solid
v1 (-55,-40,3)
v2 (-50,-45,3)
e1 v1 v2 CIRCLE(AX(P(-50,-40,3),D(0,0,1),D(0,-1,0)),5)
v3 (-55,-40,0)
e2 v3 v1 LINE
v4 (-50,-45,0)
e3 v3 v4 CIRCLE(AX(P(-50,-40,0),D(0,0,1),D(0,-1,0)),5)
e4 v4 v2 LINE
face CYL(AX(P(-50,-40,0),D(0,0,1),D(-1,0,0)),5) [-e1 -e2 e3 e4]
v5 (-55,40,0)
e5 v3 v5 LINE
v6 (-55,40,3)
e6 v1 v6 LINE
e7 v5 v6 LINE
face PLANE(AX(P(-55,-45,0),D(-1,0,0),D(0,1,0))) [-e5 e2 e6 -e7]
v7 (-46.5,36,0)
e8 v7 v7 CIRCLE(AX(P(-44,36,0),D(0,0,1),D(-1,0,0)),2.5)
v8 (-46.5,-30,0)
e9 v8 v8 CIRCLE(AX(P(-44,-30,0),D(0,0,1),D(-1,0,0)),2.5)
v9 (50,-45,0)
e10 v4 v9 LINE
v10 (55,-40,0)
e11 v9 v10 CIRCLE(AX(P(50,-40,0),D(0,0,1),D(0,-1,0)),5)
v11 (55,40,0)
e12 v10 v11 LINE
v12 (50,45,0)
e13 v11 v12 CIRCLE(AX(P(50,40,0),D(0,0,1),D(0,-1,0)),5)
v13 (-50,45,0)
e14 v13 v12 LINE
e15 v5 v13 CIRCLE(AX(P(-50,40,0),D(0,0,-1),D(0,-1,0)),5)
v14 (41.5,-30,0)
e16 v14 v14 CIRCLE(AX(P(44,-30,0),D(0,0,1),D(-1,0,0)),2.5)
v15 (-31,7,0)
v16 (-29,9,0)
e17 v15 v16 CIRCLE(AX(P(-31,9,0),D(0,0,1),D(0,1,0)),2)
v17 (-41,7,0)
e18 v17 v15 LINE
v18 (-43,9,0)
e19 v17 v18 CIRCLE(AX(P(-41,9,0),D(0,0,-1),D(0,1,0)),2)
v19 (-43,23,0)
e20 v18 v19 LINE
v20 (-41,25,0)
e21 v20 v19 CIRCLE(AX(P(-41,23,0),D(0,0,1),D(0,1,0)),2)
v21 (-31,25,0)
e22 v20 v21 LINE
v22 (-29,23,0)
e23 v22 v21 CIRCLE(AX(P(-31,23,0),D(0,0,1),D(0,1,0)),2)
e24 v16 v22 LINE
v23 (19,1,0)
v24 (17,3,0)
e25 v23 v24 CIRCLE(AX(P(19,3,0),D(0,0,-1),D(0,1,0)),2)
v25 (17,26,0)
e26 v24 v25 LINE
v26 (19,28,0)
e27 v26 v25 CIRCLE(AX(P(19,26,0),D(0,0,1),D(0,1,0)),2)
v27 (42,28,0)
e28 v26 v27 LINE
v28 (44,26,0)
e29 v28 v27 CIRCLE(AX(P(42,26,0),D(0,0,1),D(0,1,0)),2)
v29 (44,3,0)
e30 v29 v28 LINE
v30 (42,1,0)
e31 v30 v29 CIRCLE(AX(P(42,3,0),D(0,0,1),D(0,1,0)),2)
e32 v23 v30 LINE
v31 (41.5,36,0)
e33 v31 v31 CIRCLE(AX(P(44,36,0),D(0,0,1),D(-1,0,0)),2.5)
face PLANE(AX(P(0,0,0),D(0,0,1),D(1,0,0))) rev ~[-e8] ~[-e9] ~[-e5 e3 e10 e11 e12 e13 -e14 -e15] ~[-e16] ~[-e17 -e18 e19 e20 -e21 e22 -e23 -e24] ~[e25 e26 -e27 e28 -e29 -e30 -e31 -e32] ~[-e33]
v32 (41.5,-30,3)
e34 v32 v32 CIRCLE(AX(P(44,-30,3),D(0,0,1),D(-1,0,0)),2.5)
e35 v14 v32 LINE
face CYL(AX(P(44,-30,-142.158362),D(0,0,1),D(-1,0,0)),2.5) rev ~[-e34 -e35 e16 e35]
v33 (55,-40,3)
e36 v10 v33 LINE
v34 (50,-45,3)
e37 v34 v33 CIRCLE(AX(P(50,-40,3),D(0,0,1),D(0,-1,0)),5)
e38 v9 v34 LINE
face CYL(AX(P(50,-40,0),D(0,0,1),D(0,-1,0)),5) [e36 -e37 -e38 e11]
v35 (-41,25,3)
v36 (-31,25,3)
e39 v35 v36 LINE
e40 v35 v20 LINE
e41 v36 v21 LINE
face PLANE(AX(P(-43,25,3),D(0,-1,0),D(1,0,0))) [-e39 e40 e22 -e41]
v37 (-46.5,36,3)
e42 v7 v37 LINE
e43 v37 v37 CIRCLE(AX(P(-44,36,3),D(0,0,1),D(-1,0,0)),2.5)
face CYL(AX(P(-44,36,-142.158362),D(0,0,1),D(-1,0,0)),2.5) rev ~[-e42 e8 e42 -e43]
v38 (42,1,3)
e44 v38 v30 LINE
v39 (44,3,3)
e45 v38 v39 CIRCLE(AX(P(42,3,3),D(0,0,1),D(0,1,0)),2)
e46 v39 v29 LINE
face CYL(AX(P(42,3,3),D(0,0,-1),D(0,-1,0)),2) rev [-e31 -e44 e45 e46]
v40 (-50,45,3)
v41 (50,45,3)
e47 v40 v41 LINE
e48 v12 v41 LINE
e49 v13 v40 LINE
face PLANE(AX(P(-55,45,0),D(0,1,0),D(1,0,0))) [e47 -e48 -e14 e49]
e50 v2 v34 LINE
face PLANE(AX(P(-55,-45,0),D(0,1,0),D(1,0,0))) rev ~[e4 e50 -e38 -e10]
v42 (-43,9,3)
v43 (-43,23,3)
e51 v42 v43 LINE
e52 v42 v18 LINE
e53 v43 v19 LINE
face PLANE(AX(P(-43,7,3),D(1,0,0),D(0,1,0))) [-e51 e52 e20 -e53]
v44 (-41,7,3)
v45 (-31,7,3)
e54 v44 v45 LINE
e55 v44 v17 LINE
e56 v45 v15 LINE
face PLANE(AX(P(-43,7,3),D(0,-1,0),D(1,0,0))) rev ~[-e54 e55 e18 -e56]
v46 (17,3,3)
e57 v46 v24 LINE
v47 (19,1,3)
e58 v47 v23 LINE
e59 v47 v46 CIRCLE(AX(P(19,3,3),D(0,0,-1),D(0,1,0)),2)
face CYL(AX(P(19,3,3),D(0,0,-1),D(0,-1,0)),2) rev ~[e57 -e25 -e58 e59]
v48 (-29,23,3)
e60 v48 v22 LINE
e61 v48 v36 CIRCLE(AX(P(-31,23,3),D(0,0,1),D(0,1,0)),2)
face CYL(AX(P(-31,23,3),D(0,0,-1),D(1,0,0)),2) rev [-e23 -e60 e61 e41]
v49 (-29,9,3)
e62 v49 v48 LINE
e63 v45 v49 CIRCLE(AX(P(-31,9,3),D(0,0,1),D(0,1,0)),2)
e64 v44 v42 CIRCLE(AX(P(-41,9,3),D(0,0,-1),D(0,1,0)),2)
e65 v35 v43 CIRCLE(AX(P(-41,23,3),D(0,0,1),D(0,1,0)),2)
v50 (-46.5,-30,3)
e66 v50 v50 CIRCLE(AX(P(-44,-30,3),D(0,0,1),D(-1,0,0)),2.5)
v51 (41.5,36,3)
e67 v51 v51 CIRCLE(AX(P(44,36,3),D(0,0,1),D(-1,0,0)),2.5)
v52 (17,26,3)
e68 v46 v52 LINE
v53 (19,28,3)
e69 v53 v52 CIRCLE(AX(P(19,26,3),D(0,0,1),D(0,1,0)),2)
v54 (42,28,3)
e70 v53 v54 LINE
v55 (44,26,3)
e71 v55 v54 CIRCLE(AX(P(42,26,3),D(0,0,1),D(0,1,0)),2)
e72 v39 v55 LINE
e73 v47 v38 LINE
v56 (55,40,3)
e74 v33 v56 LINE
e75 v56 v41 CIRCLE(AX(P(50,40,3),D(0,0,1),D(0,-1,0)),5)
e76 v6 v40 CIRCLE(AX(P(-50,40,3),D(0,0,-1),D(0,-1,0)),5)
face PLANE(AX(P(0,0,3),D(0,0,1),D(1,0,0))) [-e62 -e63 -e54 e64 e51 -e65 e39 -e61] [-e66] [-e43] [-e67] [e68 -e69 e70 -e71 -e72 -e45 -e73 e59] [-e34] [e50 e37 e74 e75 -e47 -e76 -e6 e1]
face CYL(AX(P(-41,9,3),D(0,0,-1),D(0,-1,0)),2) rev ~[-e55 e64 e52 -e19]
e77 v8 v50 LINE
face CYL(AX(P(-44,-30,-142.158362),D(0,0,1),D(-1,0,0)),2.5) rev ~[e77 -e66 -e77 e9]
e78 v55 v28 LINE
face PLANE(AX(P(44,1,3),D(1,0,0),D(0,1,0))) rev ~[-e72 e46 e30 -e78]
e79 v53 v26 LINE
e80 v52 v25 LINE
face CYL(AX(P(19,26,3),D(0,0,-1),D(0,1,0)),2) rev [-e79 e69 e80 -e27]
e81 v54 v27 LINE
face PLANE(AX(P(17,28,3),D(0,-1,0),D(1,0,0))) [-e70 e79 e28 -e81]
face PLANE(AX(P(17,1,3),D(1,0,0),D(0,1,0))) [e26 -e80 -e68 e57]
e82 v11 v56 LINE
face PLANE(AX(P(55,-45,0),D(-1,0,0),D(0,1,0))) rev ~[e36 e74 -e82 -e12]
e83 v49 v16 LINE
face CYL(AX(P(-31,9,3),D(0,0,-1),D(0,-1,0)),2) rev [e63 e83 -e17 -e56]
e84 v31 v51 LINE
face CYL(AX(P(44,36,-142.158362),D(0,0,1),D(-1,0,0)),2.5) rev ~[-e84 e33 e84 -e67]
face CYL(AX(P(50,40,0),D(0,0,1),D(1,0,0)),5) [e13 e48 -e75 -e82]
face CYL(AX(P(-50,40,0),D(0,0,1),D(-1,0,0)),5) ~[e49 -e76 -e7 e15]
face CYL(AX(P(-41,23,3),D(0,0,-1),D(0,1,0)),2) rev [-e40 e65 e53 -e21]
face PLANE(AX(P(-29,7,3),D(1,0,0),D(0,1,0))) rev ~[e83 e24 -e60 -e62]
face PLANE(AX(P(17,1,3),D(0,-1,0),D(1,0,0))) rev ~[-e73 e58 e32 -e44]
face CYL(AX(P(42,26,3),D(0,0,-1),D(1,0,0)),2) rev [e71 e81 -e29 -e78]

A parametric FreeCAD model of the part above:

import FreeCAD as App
import Part
import Sketcher

V = App.Vector


def edges_at(feature, points):
    """Names of the edges that pass closest to the given points."""
    edges = feature.Shape.Edges
    near = lambda p: min(range(len(edges)), key=lambda i: edges[i].distToShape(Part.Vertex(*p))[0])
    return sorted({f"Edge{near(p) + 1}" for p in points})


def add_polygon(sketch, points):
    """Adds a closed chain of lines whose ends are joined by coincident constraints."""
    first, n = sketch.GeometryCount, len(points)
    for a, b in zip(points, points[1:] + points[:1]):
        sketch.addGeometry(Part.LineSegment(App.Vector(*a, 0), App.Vector(*b, 0)), False)
    for i in range(n):
        sketch.addConstraint(Sketcher.Constraint("Coincident", first + i, 2, first + (i + 1) % n, 1))

doc = App.newDocument("Part")
params = doc.addObject("Spreadsheet::Sheet", "Params")
for row, (alias, value) in enumerate([
    ("sketch1_width", "110 mm"),
    ("sketch1_height", "90 mm"),
    ("pad1_length", "3 mm"),
    ("fillet_radius", "5 mm"),
    ("sketch2_diameter", "5 mm"),
    ("hole_diameter", "5 mm"),
    ("sketch3_diameter", "5 mm"),
    ("hole2_diameter", "5 mm"),
    ("sketch4_width", "14 mm"),
    ("sketch4_width2", "27 mm"),
    ("sketch4_height", "18 mm"),
    ("fillet2_radius", "2 mm"),
], start=1):
    params.set(f"A{row}", alias)
    params.set(f"B{row}", "=" + value)
    params.setAlias(f"B{row}", alias)

body = doc.addObject("PartDesign::Body", "Body")

# Sketch on XY plane
sketch1 = doc.addObject("Sketcher::SketchObject", "Sketch")
body.addObject(sketch1)
sketch1.AttachmentSupport = (doc.XY_Plane, [""])
sketch1.MapMode = "FlatFace"
add_polygon(sketch1, [(-55, 45), (-55, -45), (55, -45), (55, 45)])  # lines 0-3
sketch1.addConstraint(Sketcher.Constraint("Vertical", 0))
sketch1.addConstraint(Sketcher.Constraint("Horizontal", 1))
sketch1.addConstraint(Sketcher.Constraint("Vertical", 2))
sketch1.addConstraint(Sketcher.Constraint("Horizontal", 3))
sketch1.addConstraint(Sketcher.Constraint("Symmetric", 0, 2, 2, 2, -1, 1))
sketch1.addConstraint(Sketcher.Constraint("DistanceX", 1, 1, 1, 2, 110.0))
sketch1.addConstraint(Sketcher.Constraint("DistanceY", 0, 2, 0, 1, 90.0))
sketch1.setExpression("Constraints[9]", "Params.sketch1_width")
sketch1.setExpression("Constraints[10]", "Params.sketch1_height")
pad1 = doc.addObject("PartDesign::Pad", "Pad")
body.addObject(pad1)
pad1.Profile = sketch1
pad1.setExpression("Length", "Params.pad1_length")
doc.recompute()

fillet = doc.addObject("PartDesign::Fillet", "Fillet")
body.addObject(fillet)
fillet.Base = (pad1, edges_at(pad1, [
    (55, 45, 1.5),
    (55, -45, 1.5),
    (-55, 45, 1.5),
    (-55, -45, 1.5),
]))
fillet.setExpression("Radius", "Params.fillet_radius")

# Sketch on XY plane
sketch2 = doc.addObject("Sketcher::SketchObject", "Sketch001")
body.addObject(sketch2)
sketch2.AttachmentSupport = (doc.XY_Plane, [""])
sketch2.MapMode = "FlatFace"
sketch2.addGeometry(Part.Circle(V(-44, 36, 0), V(0, 0, 1), 2.5), False)
sketch2.addGeometry(Part.Circle(V(44, 36, 0), V(0, 0, 1), 2.5), False)
sketch2.addConstraint(Sketcher.Constraint("Equal", 0, 1))
sketch2.addConstraint(Sketcher.Constraint("Symmetric", 0, 3, 1, 3, -2))
sketch2.addConstraint(Sketcher.Constraint("Diameter", 0, 5.0))
sketch2.addConstraint(Sketcher.Constraint("DistanceX", 0, 3, -1, 1, 44.0))
sketch2.addConstraint(Sketcher.Constraint("DistanceY", -1, 1, 0, 3, 36.0))
sketch2.setExpression("Constraints[2]", "Params.sketch2_diameter")
doc.recompute()
hole = doc.addObject("PartDesign::Hole", "Hole")
body.addObject(hole)
hole.Profile = sketch2
hole.ThreadType = "None"
hole.setExpression("Diameter", "Params.hole_diameter")
hole.DepthType = "ThroughAll"
hole.Reversed = True

# Sketch on XY plane
sketch3 = doc.addObject("Sketcher::SketchObject", "Sketch002")
body.addObject(sketch3)
sketch3.AttachmentSupport = (doc.XY_Plane, [""])
sketch3.MapMode = "FlatFace"
sketch3.addGeometry(Part.Circle(V(-44, -30, 0), V(0, 0, 1), 2.5), False)
sketch3.addGeometry(Part.Circle(V(44, -30, 0), V(0, 0, 1), 2.5), False)
sketch3.addConstraint(Sketcher.Constraint("Equal", 0, 1))
sketch3.addConstraint(Sketcher.Constraint("Symmetric", 0, 3, 1, 3, -2))
sketch3.addConstraint(Sketcher.Constraint("Diameter", 0, 5.0))
sketch3.addConstraint(Sketcher.Constraint("DistanceX", 0, 3, -1, 1, 44.0))
sketch3.addConstraint(Sketcher.Constraint("DistanceY", 0, 3, -1, 1, 30.0))
sketch3.setExpression("Constraints[2]", "Params.sketch3_diameter")
doc.recompute()
hole2 = doc.addObject("PartDesign::Hole", "Hole001")
body.addObject(hole2)
hole2.Profile = sketch3
hole2.ThreadType = "None"
hole2.setExpression("Diameter", "Params.hole2_diameter")
hole2.DepthType = "ThroughAll"
hole2.Reversed = True

# Sketch on XY plane
sketch4 = doc.addObject("Sketcher::SketchObject", "Sketch003")
body.addObject(sketch4)
sketch4.AttachmentSupport = (doc.XY_Plane, [""])
sketch4.MapMode = "FlatFace"
sketch4.AttachmentOffset = App.Placement(V(0, 0, 3), App.Rotation())
add_polygon(sketch4, [(-43, 25), (-43, 7), (-29, 7), (-29, 25)])  # lines 0-3
add_polygon(sketch4, [(17, 28), (17, 1), (44, 1), (44, 28)])  # lines 4-7
sketch4.addConstraint(Sketcher.Constraint("Vertical", 0))
sketch4.addConstraint(Sketcher.Constraint("Horizontal", 1))
sketch4.addConstraint(Sketcher.Constraint("Vertical", 2))
sketch4.addConstraint(Sketcher.Constraint("Horizontal", 3))
sketch4.addConstraint(Sketcher.Constraint("Vertical", 4))
sketch4.addConstraint(Sketcher.Constraint("Horizontal", 5))
sketch4.addConstraint(Sketcher.Constraint("Vertical", 6))
sketch4.addConstraint(Sketcher.Constraint("Horizontal", 7))
sketch4.addConstraint(Sketcher.Constraint("Equal", 7, 4))
sketch4.addConstraint(Sketcher.Constraint("DistanceX", 1, 1, 1, 2, 14.0))
sketch4.addConstraint(Sketcher.Constraint("DistanceX", 5, 1, 5, 2, 27.0))
sketch4.addConstraint(Sketcher.Constraint("DistanceY", 0, 2, 0, 1, 18.0))
sketch4.addConstraint(Sketcher.Constraint("DistanceX", 0, 2, -1, 1, 43.0))
sketch4.addConstraint(Sketcher.Constraint("DistanceY", -1, 1, 0, 2, 7.0))
sketch4.addConstraint(Sketcher.Constraint("DistanceX", -1, 1, 4, 2, 17.0))
sketch4.addConstraint(Sketcher.Constraint("DistanceY", -1, 1, 4, 2, 1.0))
sketch4.setExpression("Constraints[17]", "Params.sketch4_width")
sketch4.setExpression("Constraints[18]", "Params.sketch4_width2")
sketch4.setExpression("Constraints[19]", "Params.sketch4_height")
pocket1 = doc.addObject("PartDesign::Pocket", "Pocket")
body.addObject(pocket1)
pocket1.Profile = sketch4
pocket1.Type = "ThroughAll"
doc.recompute()

fillet2 = doc.addObject("PartDesign::Fillet", "Fillet001")
body.addObject(fillet2)
fillet2.Base = (pocket1, edges_at(pocket1, [
    (-43, 7, 1.5),
    (17, 1, 1.5),
    (-29, 7, 1.5),
    (-43, 25, 1.5),
    (17, 28, 1.5),
    (44, 28, 1.5),
    (44, 1, 1.5),
    (-29, 25, 1.5),
]))
fillet2.setExpression("Radius", "Params.fillet2_radius")

doc.recompute()
